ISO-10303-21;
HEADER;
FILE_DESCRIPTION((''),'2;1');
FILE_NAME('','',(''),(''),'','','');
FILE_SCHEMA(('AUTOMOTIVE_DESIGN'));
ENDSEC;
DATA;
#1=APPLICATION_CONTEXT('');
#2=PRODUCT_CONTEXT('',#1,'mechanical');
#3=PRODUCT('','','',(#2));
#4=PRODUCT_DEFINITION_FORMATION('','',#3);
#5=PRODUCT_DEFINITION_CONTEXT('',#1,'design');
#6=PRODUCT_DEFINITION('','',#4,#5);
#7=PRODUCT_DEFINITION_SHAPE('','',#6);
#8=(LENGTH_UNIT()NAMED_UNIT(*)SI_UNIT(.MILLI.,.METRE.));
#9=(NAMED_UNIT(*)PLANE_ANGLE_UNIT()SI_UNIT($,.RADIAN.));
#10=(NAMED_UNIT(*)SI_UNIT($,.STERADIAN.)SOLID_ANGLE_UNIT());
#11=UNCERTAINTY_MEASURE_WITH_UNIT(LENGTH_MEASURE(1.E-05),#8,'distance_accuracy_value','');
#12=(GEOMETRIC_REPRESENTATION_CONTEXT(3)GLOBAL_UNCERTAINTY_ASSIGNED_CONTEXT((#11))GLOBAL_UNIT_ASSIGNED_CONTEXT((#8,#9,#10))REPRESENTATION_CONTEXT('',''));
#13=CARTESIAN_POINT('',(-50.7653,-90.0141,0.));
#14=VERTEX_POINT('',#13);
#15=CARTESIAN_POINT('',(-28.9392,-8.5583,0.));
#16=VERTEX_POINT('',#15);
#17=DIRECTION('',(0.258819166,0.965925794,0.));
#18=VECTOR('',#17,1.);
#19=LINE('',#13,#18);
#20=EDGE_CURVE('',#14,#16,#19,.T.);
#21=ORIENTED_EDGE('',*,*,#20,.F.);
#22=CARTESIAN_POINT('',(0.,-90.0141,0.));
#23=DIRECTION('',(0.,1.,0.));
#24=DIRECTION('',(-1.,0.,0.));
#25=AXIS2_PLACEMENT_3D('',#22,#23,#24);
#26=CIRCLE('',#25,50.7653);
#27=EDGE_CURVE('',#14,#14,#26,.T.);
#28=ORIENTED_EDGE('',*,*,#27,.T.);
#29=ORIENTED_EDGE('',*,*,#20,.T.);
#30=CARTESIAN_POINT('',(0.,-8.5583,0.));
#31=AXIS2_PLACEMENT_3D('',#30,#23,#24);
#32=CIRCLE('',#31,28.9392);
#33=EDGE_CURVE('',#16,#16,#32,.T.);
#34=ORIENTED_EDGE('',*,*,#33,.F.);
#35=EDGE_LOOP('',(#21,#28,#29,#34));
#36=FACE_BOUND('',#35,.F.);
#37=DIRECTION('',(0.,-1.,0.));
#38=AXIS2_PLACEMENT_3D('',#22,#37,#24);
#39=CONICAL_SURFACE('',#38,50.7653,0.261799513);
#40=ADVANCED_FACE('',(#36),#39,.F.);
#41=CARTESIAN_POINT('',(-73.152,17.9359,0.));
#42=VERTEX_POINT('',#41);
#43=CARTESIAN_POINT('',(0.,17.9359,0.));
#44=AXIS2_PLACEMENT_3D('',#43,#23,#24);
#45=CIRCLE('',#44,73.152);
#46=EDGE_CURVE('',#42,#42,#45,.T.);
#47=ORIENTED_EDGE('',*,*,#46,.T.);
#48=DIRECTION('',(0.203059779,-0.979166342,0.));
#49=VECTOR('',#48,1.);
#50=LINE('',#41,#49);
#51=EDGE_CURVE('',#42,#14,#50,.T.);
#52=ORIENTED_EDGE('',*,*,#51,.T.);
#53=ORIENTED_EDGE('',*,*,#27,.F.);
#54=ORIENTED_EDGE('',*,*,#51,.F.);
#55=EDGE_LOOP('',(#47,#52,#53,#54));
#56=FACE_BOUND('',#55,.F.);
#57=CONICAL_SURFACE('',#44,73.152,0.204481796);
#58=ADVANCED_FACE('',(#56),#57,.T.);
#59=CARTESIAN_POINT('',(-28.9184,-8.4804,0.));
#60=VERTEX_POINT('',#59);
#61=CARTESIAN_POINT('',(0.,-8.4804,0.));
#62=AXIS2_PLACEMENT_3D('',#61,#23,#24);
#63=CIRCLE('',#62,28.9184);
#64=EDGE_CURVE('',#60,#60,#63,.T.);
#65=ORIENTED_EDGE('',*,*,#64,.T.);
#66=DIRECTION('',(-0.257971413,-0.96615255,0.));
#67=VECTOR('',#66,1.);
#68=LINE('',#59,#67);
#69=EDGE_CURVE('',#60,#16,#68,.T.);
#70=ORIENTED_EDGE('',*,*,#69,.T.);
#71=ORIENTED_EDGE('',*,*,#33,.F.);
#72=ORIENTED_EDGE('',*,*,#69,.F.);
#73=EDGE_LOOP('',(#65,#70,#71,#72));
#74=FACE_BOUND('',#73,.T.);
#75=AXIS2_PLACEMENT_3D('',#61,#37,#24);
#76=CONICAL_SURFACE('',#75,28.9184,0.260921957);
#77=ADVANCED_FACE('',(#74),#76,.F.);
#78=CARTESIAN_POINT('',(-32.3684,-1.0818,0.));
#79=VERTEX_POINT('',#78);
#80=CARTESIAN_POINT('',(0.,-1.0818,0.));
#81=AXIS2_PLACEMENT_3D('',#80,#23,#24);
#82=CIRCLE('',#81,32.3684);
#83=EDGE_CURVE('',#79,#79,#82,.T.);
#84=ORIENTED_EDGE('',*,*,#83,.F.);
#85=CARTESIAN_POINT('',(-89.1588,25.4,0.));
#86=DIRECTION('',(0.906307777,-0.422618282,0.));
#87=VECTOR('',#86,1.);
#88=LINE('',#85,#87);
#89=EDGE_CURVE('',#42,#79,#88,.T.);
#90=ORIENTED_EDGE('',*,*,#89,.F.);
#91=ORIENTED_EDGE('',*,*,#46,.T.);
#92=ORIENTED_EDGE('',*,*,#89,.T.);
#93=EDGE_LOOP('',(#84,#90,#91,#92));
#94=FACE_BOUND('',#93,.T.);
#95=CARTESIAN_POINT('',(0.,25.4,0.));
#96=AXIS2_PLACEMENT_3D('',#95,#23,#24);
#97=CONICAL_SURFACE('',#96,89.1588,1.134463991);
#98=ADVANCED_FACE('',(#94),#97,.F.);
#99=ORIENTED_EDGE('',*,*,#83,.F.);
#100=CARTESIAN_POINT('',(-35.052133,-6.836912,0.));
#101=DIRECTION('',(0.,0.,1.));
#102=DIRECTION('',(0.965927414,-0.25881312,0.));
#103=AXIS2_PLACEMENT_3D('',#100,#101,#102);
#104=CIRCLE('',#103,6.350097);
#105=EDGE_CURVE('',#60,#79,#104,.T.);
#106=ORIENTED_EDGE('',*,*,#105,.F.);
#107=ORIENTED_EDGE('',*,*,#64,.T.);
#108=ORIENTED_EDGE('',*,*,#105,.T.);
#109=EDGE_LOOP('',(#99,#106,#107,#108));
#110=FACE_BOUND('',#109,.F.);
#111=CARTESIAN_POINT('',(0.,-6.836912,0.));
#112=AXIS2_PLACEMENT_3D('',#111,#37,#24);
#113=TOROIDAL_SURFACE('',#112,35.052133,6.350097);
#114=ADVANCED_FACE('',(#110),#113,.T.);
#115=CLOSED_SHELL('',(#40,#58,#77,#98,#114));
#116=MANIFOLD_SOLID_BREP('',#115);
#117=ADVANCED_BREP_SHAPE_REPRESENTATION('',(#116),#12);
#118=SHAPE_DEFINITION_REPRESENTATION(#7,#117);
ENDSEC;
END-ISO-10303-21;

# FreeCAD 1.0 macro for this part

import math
import FreeCAD as App
import Part
import Sketcher

V = App.Vector
Q = App.Units.Quantity

doc = App.newDocument("Part")
params = doc.addObject("Spreadsheet::Sheet", "Params")
for row, (alias, value) in enumerate([
    ("sketch1_radius", "0.25 in"),
    ("revolution_angle", "360 deg"),
], start=1):
    params.set(f"A{row}", alias)
    params.set(f"B{row}", "=" + value)
    params.setAlias(f"B{row}", alias)

body = doc.addObject("PartDesign::Body", "Body")

# Sketch on XY plane
sketch1 = body.newObject("Sketcher::SketchObject", "Sketch")
sketch1.AttachmentSupport = (doc.getObject("XY_Plane"), [""])
sketch1.MapMode = "FlatFace"
sketch1.addGeometry([
    Part.LineSegment(V(-32.37, -1.08, 0), V(-73.15, 17.94, 0)),  # 0
    Part.LineSegment(V(-73.15, 17.94, 0), V(-50.77, -90.01, 0)),  # 1
    Part.LineSegment(V(-50.77, -90.01, 0), V(-28.94, -8.56, 0)),  # 2
    Part.LineSegment(V(-28.94, -8.56, 0), V(-28.92, -8.48, 0)),  # 3
    Part.ArcOfCircle(Part.Circle(V(-35.05, -6.84, 0), V(0, 0, 1), 6.35), math.radians(-15), math.radians(65)),  # 4
], False)
sketch1.addConstraint([
    Sketcher.Constraint("Coincident", 0, 2, 1, 1),
    Sketcher.Constraint("Coincident", 1, 2, 2, 1),
    Sketcher.Constraint("Coincident", 2, 2, 3, 1),
    Sketcher.Constraint("Coincident", 3, 2, 4, 1),
    Sketcher.Constraint("Tangent", 4, 2, 0, 1),
    Sketcher.Constraint("Radius", 4, Q("0.25 in")),
    Sketcher.Constraint("DistanceY", 1, 2, 0, 2, Q("4.25 in")),
    Sketcher.Constraint("Angle", 0, Q("155 deg")),
    Sketcher.Constraint("Angle", 2, Q("75 deg")),
    Sketcher.Constraint("DistanceX", 0, 2, 4, 3, Q("1.5 in")),
    Sketcher.Constraint("DistanceX", 4, 3, -1, 1, Q("1.38 in")),
    Sketcher.Constraint("Angle", 3, Q("75.0503 deg")),
    Sketcher.Constraint("DistanceY", 1, 2, 3, 2, Q("3.21 in")),
    Sketcher.Constraint("DistanceX", 4, 2, 2, 2, Q("0.135 in")),
    Sketcher.Constraint("DistanceY", 4, 2, -1, 1, Q("0.0426 in")),
])
sketch1.setExpression("Constraints[5]", "Params.sketch1_radius")
revolution = body.newObject("PartDesign::Revolution", "Revolution")
revolution.Profile = sketch1
revolution.ReferenceAxis = (sketch1, ["V_Axis"])
revolution.setExpression("Angle", "Params.revolution_angle")

doc.recompute()
